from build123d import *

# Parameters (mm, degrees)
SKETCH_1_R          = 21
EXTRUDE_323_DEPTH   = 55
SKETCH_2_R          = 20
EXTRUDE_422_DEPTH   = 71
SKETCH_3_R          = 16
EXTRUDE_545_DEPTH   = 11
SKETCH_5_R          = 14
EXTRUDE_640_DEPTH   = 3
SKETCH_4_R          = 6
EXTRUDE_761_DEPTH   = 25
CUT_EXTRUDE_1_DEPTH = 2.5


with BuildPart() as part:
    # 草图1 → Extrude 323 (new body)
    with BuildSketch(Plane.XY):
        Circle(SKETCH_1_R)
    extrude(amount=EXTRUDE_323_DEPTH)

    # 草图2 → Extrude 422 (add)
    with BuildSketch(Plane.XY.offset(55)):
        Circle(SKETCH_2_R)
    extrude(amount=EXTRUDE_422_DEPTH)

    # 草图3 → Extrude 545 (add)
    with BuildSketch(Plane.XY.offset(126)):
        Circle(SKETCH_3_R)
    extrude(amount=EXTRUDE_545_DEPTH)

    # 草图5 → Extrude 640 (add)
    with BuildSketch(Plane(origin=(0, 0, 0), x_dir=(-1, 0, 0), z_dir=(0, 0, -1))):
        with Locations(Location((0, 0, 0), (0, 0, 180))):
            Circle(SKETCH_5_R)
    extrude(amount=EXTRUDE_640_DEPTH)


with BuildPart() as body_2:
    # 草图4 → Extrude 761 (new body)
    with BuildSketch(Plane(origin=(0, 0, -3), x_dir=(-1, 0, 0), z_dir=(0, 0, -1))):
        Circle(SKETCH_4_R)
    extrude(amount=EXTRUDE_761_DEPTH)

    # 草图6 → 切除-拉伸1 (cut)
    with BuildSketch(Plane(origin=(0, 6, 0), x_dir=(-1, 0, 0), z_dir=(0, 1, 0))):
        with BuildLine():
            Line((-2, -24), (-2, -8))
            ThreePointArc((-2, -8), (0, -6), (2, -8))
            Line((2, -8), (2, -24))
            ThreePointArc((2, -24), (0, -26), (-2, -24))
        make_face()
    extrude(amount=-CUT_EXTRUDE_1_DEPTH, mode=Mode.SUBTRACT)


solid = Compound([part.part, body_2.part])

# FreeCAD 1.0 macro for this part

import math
import FreeCAD as App
import Part
import Sketcher

V = App.Vector
Q = App.Units.Quantity

doc = App.newDocument("Part")
body = doc.addObject("PartDesign::Body", "Body")

# Sketch on XY plane
sketch1 = body.newObject("Sketcher::SketchObject", "Sketch")
sketch1.AttachmentSupport = (doc.getObject("XY_Plane"), [""])
sketch1.MapMode = "FlatFace"
sketch1.addGeometry(Part.Circle(V(0, 0, 0), V(0, 0, 1), 21), False)
sketch1.addConstraint([
    Sketcher.Constraint("Coincident", 0, 3, -1, 1),
    Sketcher.Constraint("Diameter", 0, Q("42 mm")),
])
pad1 = body.newObject("PartDesign::Pad", "Pad")
pad1.Profile = sketch1
pad1.Length = 55

# Sketch on XY plane
sketch2 = body.newObject("Sketcher::SketchObject", "Sketch001")
sketch2.AttachmentSupport = (doc.getObject("XY_Plane"), [""])
sketch2.MapMode = "FlatFace"
sketch2.AttachmentOffset = App.Placement(V(0, 0, 55), App.Rotation())
sketch2.addGeometry(Part.Circle(V(0, 0, 0), V(0, 0, 1), 20), False)
sketch2.addConstraint([
    Sketcher.Constraint("Coincident", 0, 3, -1, 1),
    Sketcher.Constraint("Diameter", 0, Q("40 mm")),
])
pad2 = body.newObject("PartDesign::Pad", "Pad001")
pad2.Profile = sketch2
pad2.Length = 71

# Sketch on XY plane
sketch3 = body.newObject("Sketcher::SketchObject", "Sketch002")
sketch3.AttachmentSupport = (doc.getObject("XY_Plane"), [""])
sketch3.MapMode = "FlatFace"
sketch3.AttachmentOffset = App.Placement(V(0, 0, 126), App.Rotation())
sketch3.addGeometry(Part.Circle(V(0, 0, 0), V(0, 0, 1), 16), False)
sketch3.addConstraint([
    Sketcher.Constraint("Coincident", 0, 3, -1, 1),
    Sketcher.Constraint("Diameter", 0, Q("32 mm")),
])
pad3 = body.newObject("PartDesign::Pad", "Pad002")
pad3.Profile = sketch3
pad3.Length = 11

# Sketch on XY plane
sketch4 = body.newObject("Sketcher::SketchObject", "Sketch003")
sketch4.AttachmentSupport = (doc.getObject("XY_Plane"), [""])
sketch4.MapMode = "FlatFace"
sketch4.addGeometry(Part.Circle(V(0, 0, 0), V(0, 0, 1), 14), False)
sketch4.addConstraint([
    Sketcher.Constraint("Coincident", 0, 3, -1, 1),
    Sketcher.Constraint("Diameter", 0, Q("28 mm")),
])
pad4 = body.newObject("PartDesign::Pad", "Pad003")
pad4.Profile = sketch4
pad4.Length = 3
pad4.Reversed = True
body2 = doc.addObject("PartDesign::Body", "Body001")

# Sketch on XY plane
sketch5 = body2.newObject("Sketcher::SketchObject", "Sketch004")
sketch5.AttachmentSupport = (doc.getObject("XY_Plane001"), [""])
sketch5.MapMode = "FlatFace"
sketch5.AttachmentOffset = App.Placement(V(0, 0, -3), App.Rotation())
sketch5.addGeometry(Part.Circle(V(0, 0, 0), V(0, 0, 1), 6), False)
sketch5.addConstraint([
    Sketcher.Constraint("Coincident", 0, 3, -1, 1),
    Sketcher.Constraint("Diameter", 0, Q("12 mm")),
])
pad5 = body2.newObject("PartDesign::Pad", "Pad004")
pad5.Profile = sketch5
pad5.Length = 25
pad5.Reversed = True

# Sketch on XZ plane
sketch6 = body2.newObject("Sketcher::SketchObject", "Sketch005")
sketch6.AttachmentSupport = (doc.getObject("XZ_Plane001"), [""])
sketch6.MapMode = "FlatFace"
sketch6.AttachmentOffset = App.Placement(V(0, 0, -6), App.Rotation())
sketch6.addGeometry([
    Part.LineSegment(V(2, -8, 0), V(2, -24, 0)),
    Part.ArcOfCircle(Part.Circle(V(0, -24, 0), V(0, 0, 1), 2), math.radians(180), math.radians(360)),
    Part.LineSegment(V(-2, -24, 0), V(-2, -8, 0)),
    Part.ArcOfCircle(Part.Circle(V(0, -8, 0), V(0, 0, 1), 2), math.radians(0), math.radians(180)),
], False)
sketch6.addConstraint([
    Sketcher.Constraint("Tangent", 0, 2, 1, 2),
    Sketcher.Constraint("Tangent", 1, 1, 2, 1),
    Sketcher.Constraint("Tangent", 2, 2, 3, 2),
    Sketcher.Constraint("Tangent", 3, 1, 0, 1),
    Sketcher.Constraint("Vertical", 0),
    Sketcher.Constraint("Vertical", 2),
    Sketcher.Constraint("PointOnObject", 1, 3, -2),
    Sketcher.Constraint("Radius", 1, Q("2 mm")),
    Sketcher.Constraint("DistanceY", 0, 2, 0, 1, Q("16 mm")),
    Sketcher.Constraint("DistanceY", 1, 3, -1, 1, Q("24 mm")),
])
pocket1 = body2.newObject("PartDesign::Pocket", "Pocket")
pocket1.Profile = sketch6
pocket1.Length = 2.5
pocket1.Reversed = True

doc.recompute()
